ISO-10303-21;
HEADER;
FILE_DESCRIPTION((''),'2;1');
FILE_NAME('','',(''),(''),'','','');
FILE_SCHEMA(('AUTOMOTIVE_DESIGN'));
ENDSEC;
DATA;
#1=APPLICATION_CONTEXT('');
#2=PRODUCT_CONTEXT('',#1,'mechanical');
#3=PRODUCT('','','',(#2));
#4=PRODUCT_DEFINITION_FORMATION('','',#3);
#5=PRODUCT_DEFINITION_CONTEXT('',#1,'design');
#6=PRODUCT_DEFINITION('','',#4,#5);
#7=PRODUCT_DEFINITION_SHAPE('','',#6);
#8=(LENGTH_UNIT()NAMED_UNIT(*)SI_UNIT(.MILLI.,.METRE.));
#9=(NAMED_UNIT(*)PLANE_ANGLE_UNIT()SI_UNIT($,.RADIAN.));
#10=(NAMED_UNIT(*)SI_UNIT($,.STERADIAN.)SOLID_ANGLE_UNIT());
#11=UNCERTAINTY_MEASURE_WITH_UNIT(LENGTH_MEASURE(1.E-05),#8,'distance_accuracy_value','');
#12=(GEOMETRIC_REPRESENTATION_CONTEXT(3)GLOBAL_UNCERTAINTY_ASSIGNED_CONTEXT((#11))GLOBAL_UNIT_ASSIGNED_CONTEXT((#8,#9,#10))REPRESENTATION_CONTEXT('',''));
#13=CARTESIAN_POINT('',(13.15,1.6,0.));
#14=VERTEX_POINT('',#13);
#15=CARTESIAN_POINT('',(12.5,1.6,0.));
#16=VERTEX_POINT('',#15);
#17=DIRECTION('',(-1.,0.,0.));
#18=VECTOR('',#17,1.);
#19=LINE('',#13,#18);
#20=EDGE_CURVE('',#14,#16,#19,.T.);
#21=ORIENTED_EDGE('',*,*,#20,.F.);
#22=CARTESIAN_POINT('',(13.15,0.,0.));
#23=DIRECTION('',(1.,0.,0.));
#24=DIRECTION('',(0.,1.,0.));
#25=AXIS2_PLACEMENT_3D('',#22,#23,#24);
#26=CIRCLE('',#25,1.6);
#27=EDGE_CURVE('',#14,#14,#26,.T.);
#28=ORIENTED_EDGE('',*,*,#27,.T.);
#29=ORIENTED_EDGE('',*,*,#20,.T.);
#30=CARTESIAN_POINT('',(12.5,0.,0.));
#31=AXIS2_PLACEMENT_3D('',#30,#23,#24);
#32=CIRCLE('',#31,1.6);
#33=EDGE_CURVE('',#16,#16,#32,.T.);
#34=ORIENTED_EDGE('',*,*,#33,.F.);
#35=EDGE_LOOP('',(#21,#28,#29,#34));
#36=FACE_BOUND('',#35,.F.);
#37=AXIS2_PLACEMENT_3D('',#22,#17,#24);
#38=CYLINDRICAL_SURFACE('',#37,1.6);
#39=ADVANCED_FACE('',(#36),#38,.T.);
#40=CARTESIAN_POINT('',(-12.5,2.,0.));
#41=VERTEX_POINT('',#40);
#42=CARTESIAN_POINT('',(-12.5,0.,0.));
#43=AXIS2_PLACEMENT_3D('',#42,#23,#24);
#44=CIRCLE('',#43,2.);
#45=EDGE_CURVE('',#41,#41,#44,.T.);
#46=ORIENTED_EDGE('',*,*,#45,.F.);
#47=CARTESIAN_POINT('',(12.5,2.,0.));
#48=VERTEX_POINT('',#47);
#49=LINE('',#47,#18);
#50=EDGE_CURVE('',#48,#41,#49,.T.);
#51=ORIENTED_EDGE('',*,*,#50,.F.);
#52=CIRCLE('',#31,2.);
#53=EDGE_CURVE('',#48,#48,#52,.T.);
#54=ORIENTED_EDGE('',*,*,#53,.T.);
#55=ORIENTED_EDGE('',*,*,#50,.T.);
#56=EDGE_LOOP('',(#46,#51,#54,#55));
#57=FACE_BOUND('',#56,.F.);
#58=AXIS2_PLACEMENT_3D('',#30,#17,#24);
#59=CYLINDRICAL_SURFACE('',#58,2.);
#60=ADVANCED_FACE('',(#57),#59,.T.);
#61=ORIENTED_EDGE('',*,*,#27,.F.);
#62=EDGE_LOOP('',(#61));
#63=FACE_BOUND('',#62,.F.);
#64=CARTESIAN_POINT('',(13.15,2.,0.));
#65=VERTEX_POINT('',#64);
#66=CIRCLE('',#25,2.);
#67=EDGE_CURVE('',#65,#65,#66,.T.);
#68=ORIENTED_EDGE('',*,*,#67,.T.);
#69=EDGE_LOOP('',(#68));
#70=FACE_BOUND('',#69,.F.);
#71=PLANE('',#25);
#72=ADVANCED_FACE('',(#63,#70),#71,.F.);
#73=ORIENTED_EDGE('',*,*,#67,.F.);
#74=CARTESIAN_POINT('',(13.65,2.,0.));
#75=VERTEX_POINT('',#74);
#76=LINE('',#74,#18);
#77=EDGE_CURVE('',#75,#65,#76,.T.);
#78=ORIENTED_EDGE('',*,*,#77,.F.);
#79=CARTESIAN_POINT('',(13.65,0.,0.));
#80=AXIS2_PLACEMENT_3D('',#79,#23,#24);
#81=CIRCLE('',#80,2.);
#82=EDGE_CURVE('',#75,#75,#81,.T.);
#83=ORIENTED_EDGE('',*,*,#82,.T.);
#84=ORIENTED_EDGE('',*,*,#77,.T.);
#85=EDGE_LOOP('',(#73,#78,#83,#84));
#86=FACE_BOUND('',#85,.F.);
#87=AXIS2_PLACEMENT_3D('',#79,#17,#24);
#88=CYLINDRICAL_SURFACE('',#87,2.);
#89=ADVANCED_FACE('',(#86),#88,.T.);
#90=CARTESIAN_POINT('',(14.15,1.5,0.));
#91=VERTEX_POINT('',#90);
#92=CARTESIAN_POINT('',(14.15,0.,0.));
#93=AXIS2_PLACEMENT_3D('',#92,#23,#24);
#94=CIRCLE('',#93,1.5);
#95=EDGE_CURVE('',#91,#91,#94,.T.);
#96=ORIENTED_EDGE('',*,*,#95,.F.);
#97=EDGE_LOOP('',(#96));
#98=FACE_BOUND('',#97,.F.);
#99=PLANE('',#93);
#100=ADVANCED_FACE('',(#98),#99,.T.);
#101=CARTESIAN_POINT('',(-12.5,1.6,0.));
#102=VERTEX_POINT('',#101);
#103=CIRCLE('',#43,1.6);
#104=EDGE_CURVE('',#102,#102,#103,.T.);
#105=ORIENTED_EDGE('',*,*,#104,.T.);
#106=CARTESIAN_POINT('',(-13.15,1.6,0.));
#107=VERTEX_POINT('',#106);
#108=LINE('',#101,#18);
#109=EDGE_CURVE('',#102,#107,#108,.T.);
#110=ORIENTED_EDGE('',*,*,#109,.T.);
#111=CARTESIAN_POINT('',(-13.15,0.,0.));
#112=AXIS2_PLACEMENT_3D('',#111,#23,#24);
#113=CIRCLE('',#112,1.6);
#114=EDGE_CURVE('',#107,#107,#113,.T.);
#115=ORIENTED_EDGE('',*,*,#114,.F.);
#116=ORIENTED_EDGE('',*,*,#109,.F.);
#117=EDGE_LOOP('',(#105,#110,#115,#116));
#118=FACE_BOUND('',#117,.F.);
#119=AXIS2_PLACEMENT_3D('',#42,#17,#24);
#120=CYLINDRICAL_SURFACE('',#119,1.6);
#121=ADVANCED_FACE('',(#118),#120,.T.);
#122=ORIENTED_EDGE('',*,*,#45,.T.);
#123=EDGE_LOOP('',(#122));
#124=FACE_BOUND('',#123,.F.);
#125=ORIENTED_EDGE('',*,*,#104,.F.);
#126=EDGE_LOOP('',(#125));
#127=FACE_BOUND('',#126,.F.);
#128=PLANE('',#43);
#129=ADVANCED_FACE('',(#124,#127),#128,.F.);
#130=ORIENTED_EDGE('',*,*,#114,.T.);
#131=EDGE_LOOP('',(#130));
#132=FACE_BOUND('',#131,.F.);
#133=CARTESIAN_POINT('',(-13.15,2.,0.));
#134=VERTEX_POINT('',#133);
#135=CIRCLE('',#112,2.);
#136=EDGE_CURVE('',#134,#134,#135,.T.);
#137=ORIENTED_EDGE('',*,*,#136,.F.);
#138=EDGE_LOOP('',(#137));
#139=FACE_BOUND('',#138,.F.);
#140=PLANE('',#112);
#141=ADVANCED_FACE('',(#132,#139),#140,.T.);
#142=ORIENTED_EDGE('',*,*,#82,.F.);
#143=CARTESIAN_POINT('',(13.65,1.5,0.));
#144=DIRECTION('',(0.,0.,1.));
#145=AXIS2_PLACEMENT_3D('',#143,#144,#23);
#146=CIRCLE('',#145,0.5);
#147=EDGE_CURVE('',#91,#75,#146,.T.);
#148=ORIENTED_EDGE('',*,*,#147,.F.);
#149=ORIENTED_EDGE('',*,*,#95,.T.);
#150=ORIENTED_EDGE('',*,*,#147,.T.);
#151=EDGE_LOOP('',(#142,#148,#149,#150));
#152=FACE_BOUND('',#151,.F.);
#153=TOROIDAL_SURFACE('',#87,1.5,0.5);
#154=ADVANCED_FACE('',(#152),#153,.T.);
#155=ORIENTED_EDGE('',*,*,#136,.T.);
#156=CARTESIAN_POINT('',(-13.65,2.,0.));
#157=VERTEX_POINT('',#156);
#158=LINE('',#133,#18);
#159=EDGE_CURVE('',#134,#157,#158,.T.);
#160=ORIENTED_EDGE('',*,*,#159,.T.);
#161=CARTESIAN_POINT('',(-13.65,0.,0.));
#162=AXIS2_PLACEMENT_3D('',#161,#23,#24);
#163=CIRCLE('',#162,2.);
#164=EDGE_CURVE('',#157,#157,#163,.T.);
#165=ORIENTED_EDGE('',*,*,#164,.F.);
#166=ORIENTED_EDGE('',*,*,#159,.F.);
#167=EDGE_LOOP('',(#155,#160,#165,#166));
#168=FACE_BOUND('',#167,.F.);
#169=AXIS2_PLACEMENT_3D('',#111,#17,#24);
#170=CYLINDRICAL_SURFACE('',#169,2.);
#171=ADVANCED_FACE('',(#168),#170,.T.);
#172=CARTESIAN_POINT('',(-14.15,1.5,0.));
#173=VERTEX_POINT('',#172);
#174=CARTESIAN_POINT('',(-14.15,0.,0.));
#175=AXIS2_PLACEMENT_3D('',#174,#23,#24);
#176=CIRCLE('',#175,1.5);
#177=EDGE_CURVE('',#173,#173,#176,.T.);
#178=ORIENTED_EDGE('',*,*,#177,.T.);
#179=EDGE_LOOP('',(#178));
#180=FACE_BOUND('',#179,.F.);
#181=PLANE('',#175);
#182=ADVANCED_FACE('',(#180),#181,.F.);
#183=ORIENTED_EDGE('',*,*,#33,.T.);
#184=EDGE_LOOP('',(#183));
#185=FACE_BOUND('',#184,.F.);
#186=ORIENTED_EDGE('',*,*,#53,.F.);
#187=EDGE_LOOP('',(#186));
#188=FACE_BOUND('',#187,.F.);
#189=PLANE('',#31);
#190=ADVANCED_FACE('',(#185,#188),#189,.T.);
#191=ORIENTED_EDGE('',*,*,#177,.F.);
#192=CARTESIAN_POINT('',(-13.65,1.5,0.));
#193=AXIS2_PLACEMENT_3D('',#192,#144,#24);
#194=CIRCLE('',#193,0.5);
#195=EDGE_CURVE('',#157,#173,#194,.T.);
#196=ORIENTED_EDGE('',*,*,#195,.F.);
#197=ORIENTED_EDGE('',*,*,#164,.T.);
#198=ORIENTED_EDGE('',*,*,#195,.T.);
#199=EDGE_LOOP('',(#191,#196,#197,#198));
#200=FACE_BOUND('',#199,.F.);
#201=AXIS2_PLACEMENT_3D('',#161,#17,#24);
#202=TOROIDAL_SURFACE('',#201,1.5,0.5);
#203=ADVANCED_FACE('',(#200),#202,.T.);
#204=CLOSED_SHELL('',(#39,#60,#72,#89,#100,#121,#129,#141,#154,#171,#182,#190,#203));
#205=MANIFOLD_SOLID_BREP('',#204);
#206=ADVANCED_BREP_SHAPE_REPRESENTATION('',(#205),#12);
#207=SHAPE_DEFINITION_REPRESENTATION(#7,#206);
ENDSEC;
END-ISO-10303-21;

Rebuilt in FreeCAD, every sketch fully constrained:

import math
import FreeCAD as App
import Part
import Sketcher

V = App.Vector
Q = App.Units.Quantity

doc = App.newDocument("Part")
body = doc.addObject("PartDesign::Body", "Body")

# Sketch on XY plane
sketch1 = doc.addObject("Sketcher::SketchObject", "Sketch")
body.addObject(sketch1)
sketch1.AttachmentSupport = (doc.XY_Plane, [""])
sketch1.MapMode = "FlatFace"
sketch1.addGeometry([
    Part.LineSegment(V(-14.15, 1.5, 0), V(-14.15, 0, 0)),  # 0
    Part.LineSegment(V(-14.15, 0, 0), V(14.15, 0, 0)),  # 1
    Part.LineSegment(V(14.15, 0, 0), V(14.15, 1.5, 0)),  # 2
    Part.ArcOfCircle(Part.Circle(V(13.65, 1.5, 0), V(0, 0, 1), 0.5), math.radians(0), math.radians(90)),  # 3
    Part.LineSegment(V(13.65, 2, 0), V(13.15, 2, 0)),  # 4
    Part.LineSegment(V(13.15, 2, 0), V(13.15, 1.6, 0)),  # 5
    Part.LineSegment(V(13.15, 1.6, 0), V(12.5, 1.6, 0)),  # 6
    Part.LineSegment(V(12.5, 1.6, 0), V(12.5, 2, 0)),  # 7
    Part.LineSegment(V(12.5, 2, 0), V(-12.5, 2, 0)),  # 8
    Part.LineSegment(V(-12.5, 2, 0), V(-12.5, 1.6, 0)),  # 9
    Part.LineSegment(V(-12.5, 1.6, 0), V(-13.15, 1.6, 0)),  # 10
    Part.LineSegment(V(-13.15, 1.6, 0), V(-13.15, 2, 0)),  # 11
    Part.LineSegment(V(-13.15, 2, 0), V(-13.65, 2, 0)),  # 12
    Part.ArcOfCircle(Part.Circle(V(-13.65, 1.5, 0), V(0, 0, 1), 0.5), math.radians(90), math.radians(180)),  # 13
], False)
sketch1.addConstraint([
    Sketcher.Constraint("Coincident", 0, 2, 1, 1),
    Sketcher.Constraint("Coincident", 1, 2, 2, 1),
    Sketcher.Constraint("Tangent", 2, 2, 3, 1),
    Sketcher.Constraint("Tangent", 3, 2, 4, 1),
    Sketcher.Constraint("Coincident", 4, 2, 5, 1),
    Sketcher.Constraint("Coincident", 5, 2, 6, 1),
    Sketcher.Constraint("Coincident", 6, 2, 7, 1),
    Sketcher.Constraint("Coincident", 7, 2, 8, 1),
    Sketcher.Constraint("Coincident", 8, 2, 9, 1),
    Sketcher.Constraint("Coincident", 9, 2, 10, 1),
    Sketcher.Constraint("Coincident", 10, 2, 11, 1),
    Sketcher.Constraint("Coincident", 11, 2, 12, 1),
    Sketcher.Constraint("Tangent", 12, 2, 13, 1),
    Sketcher.Constraint("Tangent", 13, 2, 0, 1),
    Sketcher.Constraint("Vertical", 0),
    Sketcher.Constraint("Horizontal", 1),
    Sketcher.Constraint("Vertical", 2),
    Sketcher.Constraint("Horizontal", 4),
    Sketcher.Constraint("Vertical", 5),
    Sketcher.Constraint("Horizontal", 6),
    Sketcher.Constraint("Vertical", 7),
    Sketcher.Constraint("Horizontal", 8),
    Sketcher.Constraint("Vertical", 9),
    Sketcher.Constraint("Horizontal", 10),
    Sketcher.Constraint("Vertical", 11),
    Sketcher.Constraint("Horizontal", 12),
    Sketcher.Constraint("Equal", 3, 13),
    Sketcher.Constraint("Symmetric", 0, 2, 1, 2, -1, 1),
    Sketcher.Constraint("Symmetric", 6, 2, 9, 2, -2),
    Sketcher.Constraint("Symmetric", 4, 2, 11, 2, -2),
    Sketcher.Constraint("Horizontal", 4, 2, 7, 2),
    Sketcher.Constraint("Radius", 3, Q("0.5 mm")),
    Sketcher.Constraint("DistanceX", 8, 2, 8, 1, Q("25 mm")),
    Sketcher.Constraint("DistanceX", 4, 2, 4, 1, Q("0.5 mm")),
    Sketcher.Constraint("DistanceY", -1, 1, 3, 2, Q("2 mm")),
    Sketcher.Constraint("DistanceX", 6, 2, 6, 1, Q("0.65 mm")),
    Sketcher.Constraint("DistanceY", -1, 1, 5, 2, Q("1.6 mm")),
])
revolution = doc.addObject("PartDesign::Revolution", "Revolution")
body.addObject(revolution)
revolution.Profile = sketch1
revolution.ReferenceAxis = (sketch1, ["H_Axis"])
revolution.Angle = 360

doc.recompute()
